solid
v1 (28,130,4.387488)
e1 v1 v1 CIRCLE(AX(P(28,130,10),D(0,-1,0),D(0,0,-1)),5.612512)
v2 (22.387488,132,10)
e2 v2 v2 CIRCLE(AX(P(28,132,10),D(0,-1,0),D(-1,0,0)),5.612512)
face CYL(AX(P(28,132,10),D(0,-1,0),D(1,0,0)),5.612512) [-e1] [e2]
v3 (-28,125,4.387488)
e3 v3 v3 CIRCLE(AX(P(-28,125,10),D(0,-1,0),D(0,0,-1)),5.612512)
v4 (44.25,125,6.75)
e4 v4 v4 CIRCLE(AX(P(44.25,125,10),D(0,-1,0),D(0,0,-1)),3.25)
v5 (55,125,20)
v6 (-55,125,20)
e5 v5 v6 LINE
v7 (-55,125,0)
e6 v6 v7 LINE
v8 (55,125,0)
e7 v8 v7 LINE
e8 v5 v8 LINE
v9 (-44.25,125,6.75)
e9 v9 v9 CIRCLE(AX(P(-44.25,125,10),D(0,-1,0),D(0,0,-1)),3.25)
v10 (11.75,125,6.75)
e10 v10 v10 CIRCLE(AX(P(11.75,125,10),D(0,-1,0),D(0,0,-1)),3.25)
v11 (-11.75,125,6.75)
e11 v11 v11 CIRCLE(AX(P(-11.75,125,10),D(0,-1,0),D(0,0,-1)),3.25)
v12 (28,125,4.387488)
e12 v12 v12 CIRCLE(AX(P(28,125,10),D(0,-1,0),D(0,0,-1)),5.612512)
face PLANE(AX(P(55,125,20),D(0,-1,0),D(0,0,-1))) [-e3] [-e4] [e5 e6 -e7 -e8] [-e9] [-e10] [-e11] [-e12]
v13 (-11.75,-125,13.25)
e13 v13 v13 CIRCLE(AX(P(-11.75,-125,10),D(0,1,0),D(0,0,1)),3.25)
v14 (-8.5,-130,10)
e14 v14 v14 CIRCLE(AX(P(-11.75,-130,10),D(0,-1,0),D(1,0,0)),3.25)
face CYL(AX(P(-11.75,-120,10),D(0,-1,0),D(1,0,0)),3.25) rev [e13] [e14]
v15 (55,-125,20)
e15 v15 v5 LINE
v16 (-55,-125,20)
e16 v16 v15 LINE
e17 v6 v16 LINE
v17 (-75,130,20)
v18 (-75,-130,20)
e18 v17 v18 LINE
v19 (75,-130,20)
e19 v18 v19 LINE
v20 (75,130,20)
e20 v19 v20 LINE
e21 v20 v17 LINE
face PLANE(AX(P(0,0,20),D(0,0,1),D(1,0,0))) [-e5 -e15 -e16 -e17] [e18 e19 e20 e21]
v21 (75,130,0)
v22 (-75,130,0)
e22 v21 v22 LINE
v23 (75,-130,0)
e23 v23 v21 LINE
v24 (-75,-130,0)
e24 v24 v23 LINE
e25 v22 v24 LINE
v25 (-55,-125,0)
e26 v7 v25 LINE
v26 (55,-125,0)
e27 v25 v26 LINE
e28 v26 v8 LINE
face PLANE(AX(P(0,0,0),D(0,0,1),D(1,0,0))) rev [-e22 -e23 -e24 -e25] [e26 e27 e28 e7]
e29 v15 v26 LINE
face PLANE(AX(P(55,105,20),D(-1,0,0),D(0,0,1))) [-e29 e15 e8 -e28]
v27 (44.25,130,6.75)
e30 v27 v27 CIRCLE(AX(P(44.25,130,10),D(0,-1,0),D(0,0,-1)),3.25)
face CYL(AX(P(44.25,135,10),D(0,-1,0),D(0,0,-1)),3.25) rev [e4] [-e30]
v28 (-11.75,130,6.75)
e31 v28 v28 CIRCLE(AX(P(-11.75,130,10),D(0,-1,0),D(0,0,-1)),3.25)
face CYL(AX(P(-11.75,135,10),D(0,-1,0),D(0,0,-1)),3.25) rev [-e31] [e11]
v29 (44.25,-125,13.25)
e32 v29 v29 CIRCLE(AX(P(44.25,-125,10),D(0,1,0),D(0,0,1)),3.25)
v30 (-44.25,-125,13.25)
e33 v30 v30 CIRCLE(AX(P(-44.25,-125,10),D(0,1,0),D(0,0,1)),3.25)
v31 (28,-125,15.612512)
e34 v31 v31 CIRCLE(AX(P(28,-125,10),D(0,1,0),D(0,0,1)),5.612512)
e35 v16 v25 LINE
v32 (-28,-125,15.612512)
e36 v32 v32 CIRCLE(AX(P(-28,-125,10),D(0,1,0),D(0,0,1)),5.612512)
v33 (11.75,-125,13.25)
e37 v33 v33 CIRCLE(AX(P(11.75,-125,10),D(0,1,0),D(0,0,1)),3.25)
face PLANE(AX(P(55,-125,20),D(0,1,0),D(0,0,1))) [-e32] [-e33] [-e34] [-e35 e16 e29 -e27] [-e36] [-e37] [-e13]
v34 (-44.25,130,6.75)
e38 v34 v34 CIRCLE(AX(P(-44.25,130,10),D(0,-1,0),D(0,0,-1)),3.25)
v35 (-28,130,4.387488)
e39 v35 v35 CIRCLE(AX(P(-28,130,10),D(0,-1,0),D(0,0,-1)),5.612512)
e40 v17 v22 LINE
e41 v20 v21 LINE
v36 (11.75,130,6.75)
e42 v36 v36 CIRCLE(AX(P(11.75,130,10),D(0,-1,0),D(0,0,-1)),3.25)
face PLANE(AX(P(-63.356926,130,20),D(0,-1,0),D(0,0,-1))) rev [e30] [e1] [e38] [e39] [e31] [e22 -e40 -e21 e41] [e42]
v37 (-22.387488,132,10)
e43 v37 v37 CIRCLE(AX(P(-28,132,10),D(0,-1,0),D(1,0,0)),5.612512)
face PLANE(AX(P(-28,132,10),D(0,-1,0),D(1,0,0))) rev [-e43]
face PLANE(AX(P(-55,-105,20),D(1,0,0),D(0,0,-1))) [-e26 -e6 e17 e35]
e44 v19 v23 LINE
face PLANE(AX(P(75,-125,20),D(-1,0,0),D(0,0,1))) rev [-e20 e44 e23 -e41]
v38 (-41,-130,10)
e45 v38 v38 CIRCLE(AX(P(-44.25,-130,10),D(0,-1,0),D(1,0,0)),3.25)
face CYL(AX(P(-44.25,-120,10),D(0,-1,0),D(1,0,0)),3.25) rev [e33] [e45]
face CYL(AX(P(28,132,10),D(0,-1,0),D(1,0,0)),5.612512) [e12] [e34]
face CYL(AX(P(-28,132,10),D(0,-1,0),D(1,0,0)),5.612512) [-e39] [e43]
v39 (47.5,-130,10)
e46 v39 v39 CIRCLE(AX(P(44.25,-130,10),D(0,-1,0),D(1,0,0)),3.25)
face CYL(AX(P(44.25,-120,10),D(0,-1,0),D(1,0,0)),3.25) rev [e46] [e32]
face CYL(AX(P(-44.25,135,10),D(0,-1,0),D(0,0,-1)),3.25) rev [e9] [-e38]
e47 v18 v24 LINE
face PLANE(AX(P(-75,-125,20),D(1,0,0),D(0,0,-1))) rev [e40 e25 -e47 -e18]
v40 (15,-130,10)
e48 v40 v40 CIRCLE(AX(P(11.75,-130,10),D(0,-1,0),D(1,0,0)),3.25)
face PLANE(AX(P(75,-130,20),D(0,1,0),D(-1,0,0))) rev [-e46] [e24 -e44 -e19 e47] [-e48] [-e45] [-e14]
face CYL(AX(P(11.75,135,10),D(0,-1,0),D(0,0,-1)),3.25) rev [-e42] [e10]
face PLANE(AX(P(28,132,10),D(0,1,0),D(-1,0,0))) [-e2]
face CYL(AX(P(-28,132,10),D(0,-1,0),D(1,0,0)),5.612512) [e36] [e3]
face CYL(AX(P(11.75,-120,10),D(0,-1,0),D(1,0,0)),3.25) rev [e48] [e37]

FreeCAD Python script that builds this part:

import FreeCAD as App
import Part
import Sketcher


def add_polygon(sketch, points):
    """Adds a closed chain of lines whose ends are joined by coincident constraints."""
    first, n = sketch.GeometryCount, len(points)
    for a, b in zip(points, points[1:] + points[:1]):
        sketch.addGeometry(Part.LineSegment(App.Vector(*a, 0), App.Vector(*b, 0)), False)
    for i in range(n):
        sketch.addConstraint(Sketcher.Constraint("Coincident", first + i, 2, first + (i + 1) % n, 1))

doc = App.newDocument("Part")
body = doc.addObject("PartDesign::Body", "Body")

# Sketch on XY plane
sketch1 = body.newObject("Sketcher::SketchObject", "Sketch")
sketch1.AttachmentSupport = (doc.getObject("XY_Plane"), [""])
sketch1.MapMode = "FlatFace"
add_polygon(sketch1, [(-75, 130), (-75, -130), (75, -130), (75, 130)])  # lines 0-3
add_polygon(sketch1, [(-55, 125), (55, 125), (55, -125), (-55, -125)])  # lines 4-7
sketch1.addConstraint(Sketcher.Constraint("Vertical", 0))
sketch1.addConstraint(Sketcher.Constraint("Horizontal", 1))
sketch1.addConstraint(Sketcher.Constraint("Vertical", 2))
sketch1.addConstraint(Sketcher.Constraint("Horizontal", 3))
sketch1.addConstraint(Sketcher.Constraint("Horizontal", 4))
sketch1.addConstraint(Sketcher.Constraint("Vertical", 5))
sketch1.addConstraint(Sketcher.Constraint("Horizontal", 6))
sketch1.addConstraint(Sketcher.Constraint("Vertical", 7))
sketch1.addConstraint(Sketcher.Constraint("Symmetric", 0, 2, 2, 2, -1, 1))
sketch1.addConstraint(Sketcher.Constraint("Symmetric", 4, 2, 6, 2, -1, 1))
sketch1.addConstraint(Sketcher.Constraint("DistanceX", 1, 1, 1, 2, 150.0))
sketch1.addConstraint(Sketcher.Constraint("DistanceX", 4, 1, 4, 2, 110.0))
sketch1.addConstraint(Sketcher.Constraint("DistanceY", 0, 2, 0, 1, 260.0))
sketch1.addConstraint(Sketcher.Constraint("DistanceY", 5, 2, 5, 1, 250.0))
pad1 = body.newObject("PartDesign::Pad", "Pad")
pad1.Profile = sketch1
pad1.Length = 20

# Sketch on XZ plane
sketch2 = body.newObject("Sketcher::SketchObject", "Sketch001")
sketch2.AttachmentSupport = (doc.getObject("XZ_Plane"), [""])
sketch2.MapMode = "FlatFace"
sketch2.AttachmentOffset = App.Placement(App.Vector(0, 0, 130), App.Rotation())
sketch2.addGeometry(Part.Circle(App.Vector(-28, 10, 0), App.Vector(0, 0, 1), 6), False)
sketch2.addGeometry(Part.Circle(App.Vector(28, 10, 0), App.Vector(0, 0, 1), 6), False)
sketch2.addConstraint(Sketcher.Constraint("Equal", 0, 1))
sketch2.addConstraint(Sketcher.Constraint("Symmetric", 0, 3, 1, 3, -2))
sketch2.addConstraint(Sketcher.Constraint("DistanceX", 0, 3, -1, 1, 28.0))
sketch2.addConstraint(Sketcher.Constraint("DistanceY", -1, 1, 0, 3, 10.0))
sketch2.addConstraint(Sketcher.Constraint("Diameter", 0, 11.225024))
pad2 = body.newObject("PartDesign::Pad", "Pad001")
pad2.Profile = sketch2
pad2.Length = 262
pad2.Reversed = True

# Sketch on XZ plane
sketch3 = body.newObject("Sketcher::SketchObject", "Sketch002")
sketch3.AttachmentSupport = (doc.getObject("XZ_Plane"), [""])
sketch3.MapMode = "FlatFace"
sketch3.AttachmentOffset = App.Placement(App.Vector(0, 0, -125), App.Rotation())
sketch3.addGeometry(Part.Circle(App.Vector(-44.2, 10, 0), App.Vector(0, 0, 1), 3.2), False)
sketch3.addGeometry(Part.Circle(App.Vector(-11.8, 10, 0), App.Vector(0, 0, 1), 3.2), False)
sketch3.addGeometry(Part.Circle(App.Vector(11.8, 10, 0), App.Vector(0, 0, 1), 3.2), False)
sketch3.addGeometry(Part.Circle(App.Vector(44.2, 10, 0), App.Vector(0, 0, 1), 3.2), False)
sketch3.addConstraint(Sketcher.Constraint("Equal", 0, 1))
sketch3.addConstraint(Sketcher.Constraint("Equal", 1, 2))
sketch3.addConstraint(Sketcher.Constraint("Equal", 2, 3))
sketch3.addConstraint(Sketcher.Constraint("Symmetric", 1, 3, 2, 3, -2))
sketch3.addConstraint(Sketcher.Constraint("Symmetric", 0, 3, 3, 3, -2))
sketch3.addConstraint(Sketcher.Constraint("Horizontal", 0, 3, 1, 3))
sketch3.addConstraint(Sketcher.Constraint("Diameter", 0, 6.5))
sketch3.addConstraint(Sketcher.Constraint("DistanceY", -1, 1, 0, 3, 10.0))
sketch3.addConstraint(Sketcher.Constraint("DistanceX", 0, 3, 2, 3, 56.0))
sketch3.addConstraint(Sketcher.Constraint("DistanceX", 0, 3, 1, 3, 32.5))
pocket1 = body.newObject("PartDesign::Pocket", "Pocket")
pocket1.Profile = sketch3
pocket1.Length = 10

# Sketch on XZ plane
sketch4 = body.newObject("Sketcher::SketchObject", "Sketch003")
sketch4.AttachmentSupport = (doc.getObject("XZ_Plane"), [""])
sketch4.MapMode = "FlatFace"
sketch4.AttachmentOffset = App.Placement(App.Vector(0, 0, 130), App.Rotation())
sketch4.addGeometry(Part.Circle(App.Vector(-44.2, 10, 0), App.Vector(0, 0, 1), 3.2), False)
sketch4.addGeometry(Part.Circle(App.Vector(-11.8, 10, 0), App.Vector(0, 0, 1), 3.2), False)
sketch4.addGeometry(Part.Circle(App.Vector(11.8, 10, 0), App.Vector(0, 0, 1), 3.2), False)
sketch4.addGeometry(Part.Circle(App.Vector(44.2, 10, 0), App.Vector(0, 0, 1), 3.2), False)
sketch4.addConstraint(Sketcher.Constraint("Equal", 0, 1))
sketch4.addConstraint(Sketcher.Constraint("Equal", 1, 2))
sketch4.addConstraint(Sketcher.Constraint("Equal", 2, 3))
sketch4.addConstraint(Sketcher.Constraint("Symmetric", 1, 3, 2, 3, -2))
sketch4.addConstraint(Sketcher.Constraint("Symmetric", 0, 3, 3, 3, -2))
sketch4.addConstraint(Sketcher.Constraint("Horizontal", 0, 3, 1, 3))
sketch4.addConstraint(Sketcher.Constraint("Diameter", 0, 6.5))
sketch4.addConstraint(Sketcher.Constraint("DistanceY", -1, 1, 0, 3, 10.0))
sketch4.addConstraint(Sketcher.Constraint("DistanceX", 0, 3, 2, 3, 56.0))
sketch4.addConstraint(Sketcher.Constraint("DistanceX", 0, 3, 1, 3, 32.5))
pocket2 = body.newObject("PartDesign::Pocket", "Pocket001")
pocket2.Profile = sketch4
pocket2.Length = 10

doc.recompute()
